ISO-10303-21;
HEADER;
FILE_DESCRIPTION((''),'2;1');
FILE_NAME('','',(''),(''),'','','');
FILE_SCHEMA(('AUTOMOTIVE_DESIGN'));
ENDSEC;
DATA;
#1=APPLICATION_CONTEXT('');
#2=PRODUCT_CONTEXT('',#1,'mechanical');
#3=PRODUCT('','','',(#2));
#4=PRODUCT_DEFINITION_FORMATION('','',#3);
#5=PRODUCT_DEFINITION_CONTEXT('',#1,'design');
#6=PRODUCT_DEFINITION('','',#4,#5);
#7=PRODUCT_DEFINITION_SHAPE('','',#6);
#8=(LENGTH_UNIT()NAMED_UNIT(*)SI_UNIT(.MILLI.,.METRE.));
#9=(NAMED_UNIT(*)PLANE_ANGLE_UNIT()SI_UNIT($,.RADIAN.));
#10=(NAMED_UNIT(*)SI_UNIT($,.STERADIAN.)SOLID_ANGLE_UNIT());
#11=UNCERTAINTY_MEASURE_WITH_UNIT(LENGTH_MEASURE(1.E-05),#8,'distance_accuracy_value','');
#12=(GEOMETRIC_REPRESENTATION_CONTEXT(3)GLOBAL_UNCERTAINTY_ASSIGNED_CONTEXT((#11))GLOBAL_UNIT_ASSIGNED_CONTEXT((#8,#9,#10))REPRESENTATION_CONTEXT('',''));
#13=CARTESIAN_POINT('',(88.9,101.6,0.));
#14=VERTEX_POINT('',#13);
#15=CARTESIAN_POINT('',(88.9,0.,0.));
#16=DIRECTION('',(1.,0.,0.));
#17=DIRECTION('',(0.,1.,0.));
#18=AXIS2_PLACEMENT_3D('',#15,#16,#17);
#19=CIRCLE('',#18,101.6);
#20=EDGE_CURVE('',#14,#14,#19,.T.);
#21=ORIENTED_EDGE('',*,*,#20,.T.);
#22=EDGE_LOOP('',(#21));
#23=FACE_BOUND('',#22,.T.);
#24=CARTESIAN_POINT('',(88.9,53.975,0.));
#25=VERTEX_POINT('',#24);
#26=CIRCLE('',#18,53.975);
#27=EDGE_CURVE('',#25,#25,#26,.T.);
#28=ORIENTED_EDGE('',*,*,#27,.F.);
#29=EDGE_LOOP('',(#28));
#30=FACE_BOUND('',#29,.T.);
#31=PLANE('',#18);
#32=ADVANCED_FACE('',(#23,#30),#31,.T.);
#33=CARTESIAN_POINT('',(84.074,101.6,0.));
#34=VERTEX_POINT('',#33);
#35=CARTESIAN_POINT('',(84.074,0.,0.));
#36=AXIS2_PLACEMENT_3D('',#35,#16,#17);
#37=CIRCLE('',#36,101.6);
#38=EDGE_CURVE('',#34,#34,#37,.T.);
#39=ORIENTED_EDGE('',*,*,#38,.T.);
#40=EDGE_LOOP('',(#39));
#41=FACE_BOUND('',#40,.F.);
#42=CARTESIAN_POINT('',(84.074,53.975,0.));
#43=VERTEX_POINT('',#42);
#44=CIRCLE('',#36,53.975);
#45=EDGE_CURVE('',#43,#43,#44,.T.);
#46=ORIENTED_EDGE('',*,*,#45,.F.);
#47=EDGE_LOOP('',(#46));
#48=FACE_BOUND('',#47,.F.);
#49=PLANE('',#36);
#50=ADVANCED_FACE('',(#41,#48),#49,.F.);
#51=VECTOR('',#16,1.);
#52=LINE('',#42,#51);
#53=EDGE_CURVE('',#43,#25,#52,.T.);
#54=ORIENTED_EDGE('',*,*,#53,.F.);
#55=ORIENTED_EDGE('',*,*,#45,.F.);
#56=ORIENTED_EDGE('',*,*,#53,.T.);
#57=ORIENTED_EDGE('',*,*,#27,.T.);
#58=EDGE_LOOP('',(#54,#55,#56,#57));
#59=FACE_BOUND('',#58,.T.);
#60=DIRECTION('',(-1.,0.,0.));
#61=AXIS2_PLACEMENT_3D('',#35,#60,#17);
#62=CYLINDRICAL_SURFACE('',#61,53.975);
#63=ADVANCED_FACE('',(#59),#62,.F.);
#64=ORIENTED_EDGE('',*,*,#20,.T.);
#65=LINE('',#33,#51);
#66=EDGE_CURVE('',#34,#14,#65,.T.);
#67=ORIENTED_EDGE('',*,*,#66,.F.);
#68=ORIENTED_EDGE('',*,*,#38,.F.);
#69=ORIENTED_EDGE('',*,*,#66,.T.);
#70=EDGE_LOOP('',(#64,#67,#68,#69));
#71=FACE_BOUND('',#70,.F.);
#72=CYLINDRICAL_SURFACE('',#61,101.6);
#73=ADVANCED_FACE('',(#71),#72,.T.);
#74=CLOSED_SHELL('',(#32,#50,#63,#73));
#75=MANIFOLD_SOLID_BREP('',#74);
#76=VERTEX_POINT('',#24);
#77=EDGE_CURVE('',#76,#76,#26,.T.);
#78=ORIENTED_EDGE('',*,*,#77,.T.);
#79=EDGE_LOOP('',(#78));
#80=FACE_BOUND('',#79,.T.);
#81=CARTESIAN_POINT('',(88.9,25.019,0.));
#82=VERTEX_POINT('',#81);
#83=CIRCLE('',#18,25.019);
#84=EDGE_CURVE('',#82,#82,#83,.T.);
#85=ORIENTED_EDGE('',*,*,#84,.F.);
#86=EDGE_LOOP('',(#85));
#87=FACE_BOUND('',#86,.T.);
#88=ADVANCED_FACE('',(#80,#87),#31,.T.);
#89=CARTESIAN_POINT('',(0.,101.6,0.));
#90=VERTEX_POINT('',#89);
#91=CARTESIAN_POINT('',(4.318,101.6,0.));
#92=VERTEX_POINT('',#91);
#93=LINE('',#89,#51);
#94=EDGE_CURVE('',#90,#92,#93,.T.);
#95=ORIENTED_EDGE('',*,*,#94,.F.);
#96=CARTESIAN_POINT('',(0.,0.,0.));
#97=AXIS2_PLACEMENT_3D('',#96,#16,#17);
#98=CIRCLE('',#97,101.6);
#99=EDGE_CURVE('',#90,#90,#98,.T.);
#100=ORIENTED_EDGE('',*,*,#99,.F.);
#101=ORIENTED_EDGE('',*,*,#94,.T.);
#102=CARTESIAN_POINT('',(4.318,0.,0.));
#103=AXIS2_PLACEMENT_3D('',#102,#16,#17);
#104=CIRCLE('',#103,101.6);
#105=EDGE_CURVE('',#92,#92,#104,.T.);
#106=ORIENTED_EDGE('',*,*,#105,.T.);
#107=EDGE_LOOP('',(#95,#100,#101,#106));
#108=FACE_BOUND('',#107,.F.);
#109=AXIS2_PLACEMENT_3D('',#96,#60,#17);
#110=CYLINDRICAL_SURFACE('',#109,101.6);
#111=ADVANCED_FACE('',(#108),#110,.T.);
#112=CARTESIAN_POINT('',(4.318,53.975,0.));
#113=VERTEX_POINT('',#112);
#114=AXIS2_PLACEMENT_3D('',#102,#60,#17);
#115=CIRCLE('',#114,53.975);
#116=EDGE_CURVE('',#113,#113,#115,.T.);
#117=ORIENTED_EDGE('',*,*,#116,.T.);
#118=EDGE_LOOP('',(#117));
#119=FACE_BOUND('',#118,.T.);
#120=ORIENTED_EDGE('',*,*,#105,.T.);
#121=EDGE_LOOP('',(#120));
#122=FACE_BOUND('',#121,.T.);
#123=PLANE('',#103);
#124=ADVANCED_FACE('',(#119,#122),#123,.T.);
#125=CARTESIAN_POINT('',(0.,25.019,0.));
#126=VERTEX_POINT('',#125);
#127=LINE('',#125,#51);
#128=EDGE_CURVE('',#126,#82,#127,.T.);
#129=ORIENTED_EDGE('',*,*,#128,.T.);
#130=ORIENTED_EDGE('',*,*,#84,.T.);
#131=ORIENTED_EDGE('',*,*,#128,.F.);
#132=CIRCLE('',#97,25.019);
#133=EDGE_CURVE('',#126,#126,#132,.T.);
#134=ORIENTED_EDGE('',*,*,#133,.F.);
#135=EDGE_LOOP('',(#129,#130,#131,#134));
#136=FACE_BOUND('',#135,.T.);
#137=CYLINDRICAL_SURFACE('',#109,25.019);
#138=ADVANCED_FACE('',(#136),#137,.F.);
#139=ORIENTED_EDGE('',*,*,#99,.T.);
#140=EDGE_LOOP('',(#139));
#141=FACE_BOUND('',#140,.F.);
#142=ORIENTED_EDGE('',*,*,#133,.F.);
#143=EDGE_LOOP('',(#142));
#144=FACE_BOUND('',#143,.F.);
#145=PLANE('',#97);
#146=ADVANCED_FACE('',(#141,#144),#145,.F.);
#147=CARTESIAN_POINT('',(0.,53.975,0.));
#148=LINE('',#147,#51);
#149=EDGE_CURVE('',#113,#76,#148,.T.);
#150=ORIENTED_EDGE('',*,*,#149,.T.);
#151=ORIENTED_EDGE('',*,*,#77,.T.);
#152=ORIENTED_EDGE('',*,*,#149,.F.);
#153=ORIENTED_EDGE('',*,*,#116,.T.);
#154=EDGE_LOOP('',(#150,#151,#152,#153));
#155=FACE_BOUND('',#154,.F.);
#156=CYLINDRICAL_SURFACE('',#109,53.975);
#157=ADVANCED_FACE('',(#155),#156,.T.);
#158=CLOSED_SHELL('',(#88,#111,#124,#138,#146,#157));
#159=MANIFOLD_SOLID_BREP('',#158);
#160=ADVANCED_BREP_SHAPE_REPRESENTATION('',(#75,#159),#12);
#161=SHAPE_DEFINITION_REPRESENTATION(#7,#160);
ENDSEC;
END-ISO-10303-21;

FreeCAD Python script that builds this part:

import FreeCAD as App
import Part
import Sketcher
Q = App.Units.Quantity

doc = App.newDocument("Part")
params = doc.addObject("Spreadsheet::Sheet", "Params")
for row, (alias, value) in enumerate([
    ("sketch1_diameter", "8 in"),
    ("sketch1_diameter2", "1.97 in"),
    ("pad1_length", "0.17 in"),
    ("sketch2_diameter", "4.25 in"),
    ("sketch2_diameter2", "1.97 in"),
    ("pad2_length", "3.5 in"),
    ("sketch3_diameter", "8 in"),
    ("sketch3_diameter2", "4.25 in"),
    ("pad3_length", "0.19 in"),
], start=1):
    params.set(f"A{row}", alias)
    params.set(f"B{row}", "=" + value)
    params.setAlias(f"B{row}", alias)

body = doc.addObject("PartDesign::Body", "Body")

sketch1 = body.newObject("Sketcher::SketchObject", "Sketch")
sketch1.AttachmentSupport = (doc.getObject("YZ_Plane"), [""])
sketch1.MapMode = "FlatFace"
sketch1.addGeometry(Part.Circle(App.Vector(0, 0, 0), App.Vector(0, 0, 1), 102), False)
sketch1.addGeometry(Part.Circle(App.Vector(0, 0, 0), App.Vector(0, 0, 1), 25), False)
sketch1.addConstraint(Sketcher.Constraint("Coincident", 0, 3, -1, 1))
sketch1.addConstraint(Sketcher.Constraint("Coincident", 1, 3, -1, 1))
sketch1.addConstraint(Sketcher.Constraint("Diameter", 0, Q("8 in")))
sketch1.addConstraint(Sketcher.Constraint("Diameter", 1, Q("1.97 in")))
sketch1.setExpression("Constraints[2]", "Params.sketch1_diameter")
sketch1.setExpression("Constraints[3]", "Params.sketch1_diameter2")
pad1 = body.newObject("PartDesign::Pad", "Pad")
pad1.Profile = sketch1
pad1.setExpression("Length", "Params.pad1_length")

sketch2 = body.newObject("Sketcher::SketchObject", "Sketch001")
sketch2.AttachmentSupport = (doc.getObject("YZ_Plane"), [""])
sketch2.MapMode = "FlatFace"
sketch2.addGeometry(Part.Circle(App.Vector(0, 0, 0), App.Vector(0, 0, 1), 54), False)
sketch2.addGeometry(Part.Circle(App.Vector(0, 0, 0), App.Vector(0, 0, 1), 25), False)
sketch2.addConstraint(Sketcher.Constraint("Coincident", 0, 3, -1, 1))
sketch2.addConstraint(Sketcher.Constraint("Coincident", 1, 3, -1, 1))
sketch2.addConstraint(Sketcher.Constraint("Diameter", 0, Q("4.25 in")))
sketch2.addConstraint(Sketcher.Constraint("Diameter", 1, Q("1.97 in")))
sketch2.setExpression("Constraints[2]", "Params.sketch2_diameter")
sketch2.setExpression("Constraints[3]", "Params.sketch2_diameter2")
pad2 = body.newObject("PartDesign::Pad", "Pad001")
pad2.Profile = sketch2
pad2.setExpression("Length", "Params.pad2_length")
body2 = doc.addObject("PartDesign::Body", "Body001")

sketch3 = body2.newObject("Sketcher::SketchObject", "Sketch002")
sketch3.AttachmentSupport = (doc.getObject("YZ_Plane001"), [""])
sketch3.MapMode = "FlatFace"
sketch3.AttachmentOffset = App.Placement(App.Vector(0, 0, 3.31 * 25.4), App.Rotation())
sketch3.addGeometry(Part.Circle(App.Vector(0, 0, 0), App.Vector(0, 0, 1), 102), False)
sketch3.addGeometry(Part.Circle(App.Vector(0, 0, 0), App.Vector(0, 0, 1), 54), False)
sketch3.addConstraint(Sketcher.Constraint("Coincident", 0, 3, -1, 1))
sketch3.addConstraint(Sketcher.Constraint("Coincident", 1, 3, -1, 1))
sketch3.addConstraint(Sketcher.Constraint("Diameter", 0, Q("8 in")))
sketch3.addConstraint(Sketcher.Constraint("Diameter", 1, Q("4.25 in")))
sketch3.setExpression("Constraints[2]", "Params.sketch3_diameter")
sketch3.setExpression("Constraints[3]", "Params.sketch3_diameter2")
pad3 = body2.newObject("PartDesign::Pad", "Pad002")
pad3.Profile = sketch3
pad3.setExpression("Length", "Params.pad3_length")

doc.recompute()
